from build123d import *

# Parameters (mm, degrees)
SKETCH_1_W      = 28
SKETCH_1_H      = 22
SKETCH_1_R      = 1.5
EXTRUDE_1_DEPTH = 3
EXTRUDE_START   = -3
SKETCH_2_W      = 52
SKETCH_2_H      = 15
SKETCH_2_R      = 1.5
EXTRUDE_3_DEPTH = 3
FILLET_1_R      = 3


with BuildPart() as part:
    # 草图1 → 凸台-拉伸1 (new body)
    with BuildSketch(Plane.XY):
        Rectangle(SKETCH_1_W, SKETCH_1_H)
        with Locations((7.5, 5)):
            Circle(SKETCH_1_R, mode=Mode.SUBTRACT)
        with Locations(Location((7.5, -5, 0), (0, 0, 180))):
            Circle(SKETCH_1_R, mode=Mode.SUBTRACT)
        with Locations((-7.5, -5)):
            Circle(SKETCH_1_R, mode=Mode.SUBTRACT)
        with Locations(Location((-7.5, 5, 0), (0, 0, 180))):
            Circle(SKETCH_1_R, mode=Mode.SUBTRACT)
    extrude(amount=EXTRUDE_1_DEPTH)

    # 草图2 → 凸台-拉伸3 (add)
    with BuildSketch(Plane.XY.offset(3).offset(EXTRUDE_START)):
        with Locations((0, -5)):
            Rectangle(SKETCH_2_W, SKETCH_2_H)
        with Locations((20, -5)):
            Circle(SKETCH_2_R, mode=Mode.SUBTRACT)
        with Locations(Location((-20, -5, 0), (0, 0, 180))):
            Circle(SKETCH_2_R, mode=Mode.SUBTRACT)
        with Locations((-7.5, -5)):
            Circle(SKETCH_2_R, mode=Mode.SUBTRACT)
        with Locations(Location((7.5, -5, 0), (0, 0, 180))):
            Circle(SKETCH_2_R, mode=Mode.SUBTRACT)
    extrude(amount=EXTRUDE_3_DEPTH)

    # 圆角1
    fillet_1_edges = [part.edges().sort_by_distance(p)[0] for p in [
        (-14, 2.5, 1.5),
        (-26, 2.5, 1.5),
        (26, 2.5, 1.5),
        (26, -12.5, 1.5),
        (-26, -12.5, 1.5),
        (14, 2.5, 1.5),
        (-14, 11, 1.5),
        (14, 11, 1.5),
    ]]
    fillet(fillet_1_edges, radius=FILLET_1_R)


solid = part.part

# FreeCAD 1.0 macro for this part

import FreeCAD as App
import Part
import Sketcher
from FreeCAD import Vector


def edges_at(feature, points):
    """Names of the edges that pass closest to the given points."""
    edges = feature.Shape.Edges
    near = lambda p: min(range(len(edges)), key=lambda i: edges[i].distToShape(Part.Vertex(*p))[0])
    return sorted({f"Edge{near(p) + 1}" for p in points})


def add_polygon(sketch, points):
    """Adds a closed chain of lines whose ends are joined by coincident constraints."""
    first, n = sketch.GeometryCount, len(points)
    for a, b in zip(points, points[1:] + points[:1]):
        sketch.addGeometry(Part.LineSegment(App.Vector(*a, 0), App.Vector(*b, 0)), False)
    for i in range(n):
        sketch.addConstraint(Sketcher.Constraint("Coincident", first + i, 2, first + (i + 1) % n, 1))

doc = App.newDocument("Part")
body = doc.addObject("PartDesign::Body", "Body")

# Sketch on XY plane
sketch1 = body.newObject("Sketcher::SketchObject", "Sketch")
sketch1.AttachmentSupport = (doc.getObject("XY_Plane"), [""])
sketch1.MapMode = "FlatFace"
add_polygon(sketch1, [(-14, 11), (-14, -11), (14, -11), (14, 11)])  # lines 0-3
sketch1.addGeometry(Part.Circle(Vector(-7.5, -5, 0), Vector(0, 0, 1), 1.5), False)  # 4
sketch1.addGeometry(Part.Circle(Vector(7.5, -5, 0), Vector(0, 0, 1), 1.5), False)  # 5
sketch1.addGeometry(Part.Circle(Vector(-7.5, 5, 0), Vector(0, 0, 1), 1.5), False)  # 6
sketch1.addGeometry(Part.Circle(Vector(7.5, 5, 0), Vector(0, 0, 1), 1.5), False)  # 7
sketch1.addConstraint([
    Sketcher.Constraint("Vertical", 0),
    Sketcher.Constraint("Horizontal", 1),
    Sketcher.Constraint("Vertical", 2),
    Sketcher.Constraint("Horizontal", 3),
    Sketcher.Constraint("Equal", 4, 5),
    Sketcher.Constraint("Equal", 5, 6),
    Sketcher.Constraint("Equal", 6, 7),
    Sketcher.Constraint("Symmetric", 5, 3, 6, 3, -1, 1),
    Sketcher.Constraint("Symmetric", 4, 3, 7, 3, -1, 1),
    Sketcher.Constraint("Symmetric", 0, 2, 2, 2, -1, 1),
    Sketcher.Constraint("Symmetric", 4, 3, 5, 3, -2),
    Sketcher.Constraint("Diameter", 4, 3.0),
    Sketcher.Constraint("DistanceX", 1, 1, 1, 2, 28.0),
    Sketcher.Constraint("DistanceY", 0, 2, 0, 1, 22.0),
    Sketcher.Constraint("DistanceY", 4, 3, -1, 1, 5.0),
    Sketcher.Constraint("DistanceX", 4, 3, 5, 3, 15.0),
])
pad1 = body.newObject("PartDesign::Pad", "Pad")
pad1.Profile = sketch1
pad1.Length = 3

# Sketch on XY plane
sketch2 = body.newObject("Sketcher::SketchObject", "Sketch001")
sketch2.AttachmentSupport = (doc.getObject("XY_Plane"), [""])
sketch2.MapMode = "FlatFace"
add_polygon(sketch2, [(-26, 2.5), (-26, -12.5), (26, -12.5), (26, 2.5)])  # lines 0-3
sketch2.addGeometry(Part.Circle(Vector(-20, -5, 0), Vector(0, 0, 1), 1.5), False)  # 4
sketch2.addGeometry(Part.Circle(Vector(-7.5, -5, 0), Vector(0, 0, 1), 1.5), False)  # 5
sketch2.addGeometry(Part.Circle(Vector(7.5, -5, 0), Vector(0, 0, 1), 1.5), False)  # 6
sketch2.addGeometry(Part.Circle(Vector(20, -5, 0), Vector(0, 0, 1), 1.5), False)  # 7
sketch2.addConstraint([
    Sketcher.Constraint("Vertical", 0),
    Sketcher.Constraint("Horizontal", 1),
    Sketcher.Constraint("Vertical", 2),
    Sketcher.Constraint("Horizontal", 3),
    Sketcher.Constraint("Equal", 4, 5),
    Sketcher.Constraint("Equal", 5, 6),
    Sketcher.Constraint("Equal", 6, 7),
    Sketcher.Constraint("Symmetric", 5, 3, 6, 3, -2),
    Sketcher.Constraint("Symmetric", 4, 3, 7, 3, -2),
    Sketcher.Constraint("Horizontal", 4, 3, 5, 3),
    Sketcher.Constraint("Diameter", 4, 3.0),
    Sketcher.Constraint("DistanceX", 1, 1, 1, 2, 52.0),
    Sketcher.Constraint("DistanceY", 0, 2, 0, 1, 15.0),
    Sketcher.Constraint("DistanceX", 4, 3, -1, 1, 20.0),
    Sketcher.Constraint("DistanceY", 4, 3, -1, 1, 5.0),
    Sketcher.Constraint("DistanceX", 0, 2, -1, 1, 26.0),
    Sketcher.Constraint("DistanceX", 5, 3, 6, 3, 15.0),
    Sketcher.Constraint("DistanceY", 0, 2, -1, 1, 12.5),
])
pad2 = body.newObject("PartDesign::Pad", "Pad001")
pad2.Profile = sketch2
pad2.Length = 3
doc.recompute()

fillet = body.newObject("PartDesign::Fillet", "Fillet")
fillet.Base = (pad2, edges_at(pad2, [
    (-14, 2.5, 1.5),
    (-26, 2.5, 1.5),
    (26, 2.5, 1.5),
    (26, -12.5, 1.5),
    (-26, -12.5, 1.5),
    (14, 2.5, 1.5),
    (-14, 11, 1.5),
    (14, 11, 1.5),
]))
fillet.Radius = 3

doc.recompute()
